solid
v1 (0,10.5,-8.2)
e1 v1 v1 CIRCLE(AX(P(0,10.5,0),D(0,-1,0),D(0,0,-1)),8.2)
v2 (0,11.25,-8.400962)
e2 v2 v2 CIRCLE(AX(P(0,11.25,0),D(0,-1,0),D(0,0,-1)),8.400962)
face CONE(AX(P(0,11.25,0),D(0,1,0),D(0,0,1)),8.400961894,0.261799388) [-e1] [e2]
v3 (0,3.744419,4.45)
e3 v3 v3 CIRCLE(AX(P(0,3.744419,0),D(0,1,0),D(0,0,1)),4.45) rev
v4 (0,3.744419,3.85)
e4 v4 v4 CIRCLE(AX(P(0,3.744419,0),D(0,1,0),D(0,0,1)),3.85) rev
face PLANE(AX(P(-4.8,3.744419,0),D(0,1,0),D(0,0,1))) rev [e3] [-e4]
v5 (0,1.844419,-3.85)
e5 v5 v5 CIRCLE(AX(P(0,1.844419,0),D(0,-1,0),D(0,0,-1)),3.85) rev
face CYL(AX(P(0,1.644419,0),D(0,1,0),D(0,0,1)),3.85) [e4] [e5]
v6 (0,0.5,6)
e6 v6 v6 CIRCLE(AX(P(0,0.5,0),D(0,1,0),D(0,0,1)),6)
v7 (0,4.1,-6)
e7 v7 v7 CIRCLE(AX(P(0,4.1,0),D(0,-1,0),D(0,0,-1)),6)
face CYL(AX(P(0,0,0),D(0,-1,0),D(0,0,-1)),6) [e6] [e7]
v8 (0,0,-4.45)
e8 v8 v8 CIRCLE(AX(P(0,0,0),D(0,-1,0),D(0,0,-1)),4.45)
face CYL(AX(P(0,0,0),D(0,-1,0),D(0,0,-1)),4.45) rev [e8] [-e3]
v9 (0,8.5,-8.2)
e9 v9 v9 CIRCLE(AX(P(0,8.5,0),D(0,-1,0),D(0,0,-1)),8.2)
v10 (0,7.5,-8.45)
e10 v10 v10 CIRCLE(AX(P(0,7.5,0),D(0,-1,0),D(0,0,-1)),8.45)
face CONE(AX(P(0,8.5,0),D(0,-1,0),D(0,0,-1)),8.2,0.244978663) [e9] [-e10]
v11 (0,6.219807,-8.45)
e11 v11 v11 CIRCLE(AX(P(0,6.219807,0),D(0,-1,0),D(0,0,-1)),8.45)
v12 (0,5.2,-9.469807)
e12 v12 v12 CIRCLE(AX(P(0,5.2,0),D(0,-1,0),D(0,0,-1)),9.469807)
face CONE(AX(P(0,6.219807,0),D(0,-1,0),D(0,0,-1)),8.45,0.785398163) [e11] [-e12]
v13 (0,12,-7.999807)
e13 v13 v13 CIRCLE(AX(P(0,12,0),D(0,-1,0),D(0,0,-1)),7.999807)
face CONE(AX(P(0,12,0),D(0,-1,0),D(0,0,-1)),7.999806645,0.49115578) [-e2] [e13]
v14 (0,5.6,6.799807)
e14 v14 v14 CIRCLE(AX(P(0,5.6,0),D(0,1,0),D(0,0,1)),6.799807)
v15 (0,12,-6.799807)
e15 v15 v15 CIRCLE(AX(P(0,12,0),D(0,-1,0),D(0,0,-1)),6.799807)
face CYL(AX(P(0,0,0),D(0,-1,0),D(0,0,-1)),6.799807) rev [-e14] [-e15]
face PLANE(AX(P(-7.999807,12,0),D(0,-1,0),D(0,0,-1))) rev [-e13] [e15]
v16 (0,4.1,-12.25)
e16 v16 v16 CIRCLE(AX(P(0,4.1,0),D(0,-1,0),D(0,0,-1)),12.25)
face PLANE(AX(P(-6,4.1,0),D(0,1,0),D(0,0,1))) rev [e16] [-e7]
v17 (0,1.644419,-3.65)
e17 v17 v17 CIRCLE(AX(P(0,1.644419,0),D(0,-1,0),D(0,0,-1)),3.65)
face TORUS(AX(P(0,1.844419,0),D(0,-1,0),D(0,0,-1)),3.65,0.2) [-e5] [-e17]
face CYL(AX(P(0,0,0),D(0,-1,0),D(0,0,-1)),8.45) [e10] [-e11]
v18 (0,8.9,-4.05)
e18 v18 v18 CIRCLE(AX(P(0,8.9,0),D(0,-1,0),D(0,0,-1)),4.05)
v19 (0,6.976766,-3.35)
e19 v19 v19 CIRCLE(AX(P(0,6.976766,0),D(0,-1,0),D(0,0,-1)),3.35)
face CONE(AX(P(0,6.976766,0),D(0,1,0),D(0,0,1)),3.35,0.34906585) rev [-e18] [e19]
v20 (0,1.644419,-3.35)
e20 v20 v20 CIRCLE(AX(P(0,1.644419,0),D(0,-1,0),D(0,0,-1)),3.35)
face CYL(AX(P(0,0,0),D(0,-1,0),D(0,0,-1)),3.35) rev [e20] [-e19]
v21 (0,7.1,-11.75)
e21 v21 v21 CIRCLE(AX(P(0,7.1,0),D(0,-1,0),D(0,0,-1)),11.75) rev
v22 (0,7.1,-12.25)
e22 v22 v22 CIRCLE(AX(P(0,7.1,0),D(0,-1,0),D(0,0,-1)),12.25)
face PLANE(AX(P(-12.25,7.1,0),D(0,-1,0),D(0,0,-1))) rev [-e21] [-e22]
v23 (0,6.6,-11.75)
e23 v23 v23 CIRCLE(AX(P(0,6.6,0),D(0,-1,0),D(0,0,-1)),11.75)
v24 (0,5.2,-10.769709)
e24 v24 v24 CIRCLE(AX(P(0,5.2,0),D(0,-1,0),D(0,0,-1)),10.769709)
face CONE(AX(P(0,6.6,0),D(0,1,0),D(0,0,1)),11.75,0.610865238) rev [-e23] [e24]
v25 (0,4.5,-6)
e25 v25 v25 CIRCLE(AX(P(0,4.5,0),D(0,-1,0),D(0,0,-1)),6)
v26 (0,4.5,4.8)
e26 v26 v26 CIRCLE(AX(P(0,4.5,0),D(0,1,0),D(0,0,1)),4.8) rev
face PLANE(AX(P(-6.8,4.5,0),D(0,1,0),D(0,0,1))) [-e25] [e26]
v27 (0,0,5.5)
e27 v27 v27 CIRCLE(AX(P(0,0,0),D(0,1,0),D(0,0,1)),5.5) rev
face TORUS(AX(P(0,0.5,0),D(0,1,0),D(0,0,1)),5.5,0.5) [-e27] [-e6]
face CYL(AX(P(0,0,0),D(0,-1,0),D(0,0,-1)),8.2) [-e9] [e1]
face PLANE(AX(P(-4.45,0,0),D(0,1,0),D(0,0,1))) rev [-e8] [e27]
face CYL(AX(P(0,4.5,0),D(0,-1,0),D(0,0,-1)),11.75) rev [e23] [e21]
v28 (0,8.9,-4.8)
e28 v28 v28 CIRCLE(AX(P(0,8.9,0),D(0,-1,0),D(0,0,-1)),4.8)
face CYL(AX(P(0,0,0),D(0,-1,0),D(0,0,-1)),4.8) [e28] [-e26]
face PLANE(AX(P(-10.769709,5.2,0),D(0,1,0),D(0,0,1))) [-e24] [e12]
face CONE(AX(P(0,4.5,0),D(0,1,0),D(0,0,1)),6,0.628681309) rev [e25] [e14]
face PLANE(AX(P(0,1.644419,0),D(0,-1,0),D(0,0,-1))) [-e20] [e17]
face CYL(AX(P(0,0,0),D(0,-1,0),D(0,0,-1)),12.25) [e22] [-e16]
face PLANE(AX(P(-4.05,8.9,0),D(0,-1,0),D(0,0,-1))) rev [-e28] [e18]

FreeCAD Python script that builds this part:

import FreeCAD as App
import Part
import Sketcher
Q = App.Units.Quantity


def edges_at(feature, points):
    """Names of the edges that pass closest to the given points."""
    edges = feature.Shape.Edges
    near = lambda p: min(range(len(edges)), key=lambda i: edges[i].distToShape(Part.Vertex(*p))[0])
    return sorted({f"Edge{near(p) + 1}" for p in points})

doc = App.newDocument("Part")
body = doc.addObject("PartDesign::Body", "Body")

# Sketch on XY plane
sketch1 = body.newObject("Sketcher::SketchObject", "Sketch")
sketch1.AttachmentSupport = (doc.getObject("XY_Plane"), [""])
sketch1.MapMode = "FlatFace"
sketch1.addGeometry([
    Part.LineSegment(App.Vector(-4.5, 7.1, 0), App.Vector(-12.2, 7.1, 0)),  # 0
    Part.LineSegment(App.Vector(-12.2, 7.1, 0), App.Vector(-12.2, 4.1, 0)),  # 1
    Part.LineSegment(App.Vector(-12.2, 4.1, 0), App.Vector(-6, 4.1, 0)),  # 2
    Part.LineSegment(App.Vector(-6, 4.1, 0), App.Vector(-6, 0, 0)),  # 3
    Part.LineSegment(App.Vector(-6, 0, 0), App.Vector(-4.5, 0, 0)),  # 4
    Part.LineSegment(App.Vector(-4.5, 0, 0), App.Vector(-4.5, 7.1, 0)),  # 5
], False)
sketch1.addConstraint([
    Sketcher.Constraint("Coincident", 0, 2, 1, 1),
    Sketcher.Constraint("Coincident", 1, 2, 2, 1),
    Sketcher.Constraint("Coincident", 2, 2, 3, 1),
    Sketcher.Constraint("Coincident", 3, 2, 4, 1),
    Sketcher.Constraint("Coincident", 4, 2, 5, 1),
    Sketcher.Constraint("Coincident", 5, 2, 0, 1),
    Sketcher.Constraint("Horizontal", 0),
    Sketcher.Constraint("Vertical", 1),
    Sketcher.Constraint("Horizontal", 2),
    Sketcher.Constraint("Vertical", 3),
    Sketcher.Constraint("Horizontal", 4),
    Sketcher.Constraint("Vertical", 5),
    Sketcher.Constraint("PointOnObject", 3, 2, -1),
    Sketcher.Constraint("DistanceY", 1, 2, 1, 1, 3.0),
    Sketcher.Constraint("DistanceX", 0, 2, 0, 1, 7.8),
    Sketcher.Constraint("DistanceY", 3, 2, 3, 1, 4.1),
    Sketcher.Constraint("DistanceX", 2, 2, -1, 1, 6.0),
    Sketcher.Constraint("DistanceX", 2, 1, 2, 2, 6.25),
])
revolution = body.newObject("PartDesign::Revolution", "Revolution")
revolution.Profile = sketch1
revolution.ReferenceAxis = (sketch1, ["V_Axis"])
revolution.Angle = 360

# Sketch on XY plane
sketch2 = body.newObject("Sketcher::SketchObject", "Sketch001")
sketch2.AttachmentSupport = (doc.getObject("XY_Plane"), [""])
sketch2.MapMode = "FlatFace"
sketch2.addGeometry([
    Part.LineSegment(App.Vector(-11.8, 6.6, 0), App.Vector(-10.8, 5.2, 0)),  # 0
    Part.LineSegment(App.Vector(-10.8, 5.2, 0), App.Vector(-6.8, 5.2, 0)),  # 1
    Part.LineSegment(App.Vector(-6.8, 5.2, 0), App.Vector(-6.8, 4.5, 0)),  # 2
    Part.LineSegment(App.Vector(-6.8, 4.5, 0), App.Vector(0, 4.5, 0)),  # 3
    Part.LineSegment(App.Vector(0, 4.5, 0), App.Vector(0, 9.9, 0)),  # 4
    Part.LineSegment(App.Vector(0, 9.9, 0), App.Vector(-11.8, 9.9, 0)),  # 5
    Part.LineSegment(App.Vector(-11.8, 9.9, 0), App.Vector(-11.8, 6.6, 0)),  # 6
], False)
sketch2.addConstraint([
    Sketcher.Constraint("Coincident", 0, 2, 1, 1),
    Sketcher.Constraint("Coincident", 1, 2, 2, 1),
    Sketcher.Constraint("Coincident", 2, 2, 3, 1),
    Sketcher.Constraint("Coincident", 3, 2, 4, 1),
    Sketcher.Constraint("Coincident", 4, 2, 5, 1),
    Sketcher.Constraint("Coincident", 5, 2, 6, 1),
    Sketcher.Constraint("Coincident", 6, 2, 0, 1),
    Sketcher.Constraint("Horizontal", 1),
    Sketcher.Constraint("Vertical", 2),
    Sketcher.Constraint("Horizontal", 3),
    Sketcher.Constraint("Vertical", 4),
    Sketcher.Constraint("Horizontal", 5),
    Sketcher.Constraint("Vertical", 6),
    Sketcher.Constraint("PointOnObject", 3, 2, -2),
    Sketcher.Constraint("Angle", 0, Q("-55 deg")),
    Sketcher.Constraint("DistanceX", 3, 1, 3, 2, 6.8),
    Sketcher.Constraint("DistanceY", 2, 2, 2, 1, 0.7),
    Sketcher.Constraint("DistanceX", 5, 2, 5, 1, 11.75),
    Sketcher.Constraint("DistanceY", -1, 1, 0, 2, 5.2),
    Sketcher.Constraint("DistanceY", -1, 1, 6, 2, 6.6),
    Sketcher.Constraint("DistanceY", 4, 1, 4, 2, 5.350026),
])
groove = body.newObject("PartDesign::Groove", "Groove")
groove.Profile = sketch2
groove.ReferenceAxis = (sketch2, ["V_Axis"])
groove.Angle = 360

# Sketch on XY plane
sketch3 = body.newObject("Sketcher::SketchObject", "Sketch002")
sketch3.AttachmentSupport = (doc.getObject("XY_Plane"), [""])
sketch3.MapMode = "FlatFace"
sketch3.addGeometry([
    Part.LineSegment(App.Vector(-4.8, 8.9, 0), App.Vector(-4.8, 3.7, 0)),  # 0
    Part.LineSegment(App.Vector(-4.8, 3.7, 0), App.Vector(-3.4, 3.7, 0)),  # 1
    Part.LineSegment(App.Vector(-3.4, 3.7, 0), App.Vector(-3.4, 7, 0)),  # 2
    Part.LineSegment(App.Vector(-3.4, 7, 0), App.Vector(-4, 8.9, 0)),  # 3
    Part.LineSegment(App.Vector(-4, 8.9, 0), App.Vector(-4.8, 8.9, 0)),  # 4
], False)
sketch3.addConstraint([
    Sketcher.Constraint("Coincident", 0, 2, 1, 1),
    Sketcher.Constraint("Coincident", 1, 2, 2, 1),
    Sketcher.Constraint("Coincident", 2, 2, 3, 1),
    Sketcher.Constraint("Coincident", 3, 2, 4, 1),
    Sketcher.Constraint("Coincident", 4, 2, 0, 1),
    Sketcher.Constraint("Vertical", 0),
    Sketcher.Constraint("Horizontal", 1),
    Sketcher.Constraint("Vertical", 2),
    Sketcher.Constraint("Horizontal", 4),
    Sketcher.Constraint("Angle", 3, Q("110 deg")),
    Sketcher.Constraint("DistanceX", 1, 1, 1, 2, 1.45),
    Sketcher.Constraint("DistanceX", 4, 2, 4, 1, 0.75),
    Sketcher.Constraint("DistanceX", 0, 2, -1, 1, 4.8),
    Sketcher.Constraint("DistanceY", -1, 1, 3, 2, 8.9),
    Sketcher.Constraint("DistanceY", 0, 2, 0, 1, 5.155581),
])
revolution2 = body.newObject("PartDesign::Revolution", "Revolution001")
revolution2.Profile = sketch3
revolution2.ReferenceAxis = (sketch3, ["V_Axis"])
revolution2.Angle = 360

# Sketch on XZ plane
sketch4 = body.newObject("Sketcher::SketchObject", "Sketch003")
sketch4.AttachmentSupport = (doc.getObject("XZ_Plane"), [""])
sketch4.MapMode = "FlatFace"
sketch4.AttachmentOffset = App.Placement(App.Vector(0, 0, -3.744419), App.Rotation())
sketch4.addGeometry([
    Part.Circle(App.Vector(0, 0, 0), App.Vector(0, 0, 1), 3.9),
    Part.Circle(App.Vector(0, 0, 0), App.Vector(0, 0, 1), 3.4),
], False)
sketch4.addConstraint([
    Sketcher.Constraint("Coincident", 0, 3, -1, 1),
    Sketcher.Constraint("Coincident", 1, 3, -1, 1),
    Sketcher.Constraint("Diameter", 0, 7.7),
    Sketcher.Constraint("Diameter", 1, 6.7),
])
pad1 = body.newObject("PartDesign::Pad", "Pad")
pad1.Profile = sketch4
pad1.Length = 2.1

# Sketch on XY plane
sketch5 = body.newObject("Sketcher::SketchObject", "Sketch004")
sketch5.AttachmentSupport = (doc.getObject("XY_Plane"), [""])
sketch5.MapMode = "FlatFace"
sketch5.addGeometry([
    Part.LineSegment(App.Vector(-6.8, 5.2, 0), App.Vector(-6.8, 12, 0)),  # 0
    Part.LineSegment(App.Vector(-6.8, 12, 0), App.Vector(-8, 12, 0)),  # 1
    Part.LineSegment(App.Vector(-8, 12, 0), App.Vector(-8.4, 11.2, 0)),  # 2
    Part.LineSegment(App.Vector(-8.4, 11.2, 0), App.Vector(-8.2, 10.5, 0)),  # 3
    Part.LineSegment(App.Vector(-8.2, 10.5, 0), App.Vector(-8.2, 8.5, 0)),  # 4
    Part.LineSegment(App.Vector(-8.2, 8.5, 0), App.Vector(-8.4, 7.5, 0)),  # 5
    Part.LineSegment(App.Vector(-8.4, 7.5, 0), App.Vector(-8.4, 6.2, 0)),  # 6
    Part.LineSegment(App.Vector(-8.4, 6.2, 0), App.Vector(-9.5, 5.2, 0)),  # 7
    Part.LineSegment(App.Vector(-9.5, 5.2, 0), App.Vector(-6.8, 5.2, 0)),  # 8
], False)
sketch5.addConstraint([
    Sketcher.Constraint("Coincident", 0, 2, 1, 1),
    Sketcher.Constraint("Coincident", 1, 2, 2, 1),
    Sketcher.Constraint("Coincident", 2, 2, 3, 1),
    Sketcher.Constraint("Coincident", 3, 2, 4, 1),
    Sketcher.Constraint("Coincident", 4, 2, 5, 1),
    Sketcher.Constraint("Coincident", 5, 2, 6, 1),
    Sketcher.Constraint("Coincident", 6, 2, 7, 1),
    Sketcher.Constraint("Coincident", 7, 2, 8, 1),
    Sketcher.Constraint("Coincident", 8, 2, 0, 1),
    Sketcher.Constraint("Vertical", 0),
    Sketcher.Constraint("Horizontal", 1),
    Sketcher.Constraint("Vertical", 4),
    Sketcher.Constraint("Vertical", 6),
    Sketcher.Constraint("Horizontal", 8),
    Sketcher.Constraint("DistanceY", 4, 2, 4, 1, 2.0),
    Sketcher.Constraint("Angle", 3, Q("-75 deg")),
    Sketcher.Constraint("Angle", 7, Q("-135 deg")),
    Sketcher.Constraint("DistanceX", 1, 2, 1, 1, 1.2),
    Sketcher.Constraint("DistanceY", 0, 1, 0, 2, 6.8),
    Sketcher.Constraint("DistanceY", -1, 1, 0, 2, 12.0),
    Sketcher.Constraint("DistanceY", 5, 2, 4, 2, 1.0),
    Sketcher.Constraint("DistanceX", 8, 1, 8, 2, 2.67),
    Sketcher.Constraint("DistanceX", 3, 2, -1, 1, 8.2),
    Sketcher.Constraint("DistanceY", -1, 1, 3, 2, 10.5),
    Sketcher.Constraint("DistanceY", -1, 1, 2, 2, 11.25),
    Sketcher.Constraint("DistanceX", 5, 2, -1, 1, 8.45),
    Sketcher.Constraint("DistanceY", 6, 2, 6, 1, 1.280193),
])
revolution3 = body.newObject("PartDesign::Revolution", "Revolution002")
revolution3.Profile = sketch5
revolution3.ReferenceAxis = (sketch5, ["V_Axis"])
revolution3.Angle = 360

# Sketch on XY plane
sketch6 = body.newObject("Sketcher::SketchObject", "Sketch005")
sketch6.AttachmentSupport = (doc.getObject("XY_Plane"), [""])
sketch6.MapMode = "FlatFace"
sketch6.addGeometry([
    Part.LineSegment(App.Vector(-6, 4.5, 0), App.Vector(-6.8, 5.6, 0)),  # 0
    Part.LineSegment(App.Vector(-6.8, 5.6, 0), App.Vector(-7.14, 5.6, 0)),  # 1
    Part.LineSegment(App.Vector(-7.14, 5.6, 0), App.Vector(-7.14, 4.31, 0)),  # 2
    Part.LineSegment(App.Vector(-7.14, 4.31, 0), App.Vector(-6, 4.31, 0)),  # 3
    Part.LineSegment(App.Vector(-6, 4.31, 0), App.Vector(-6, 4.5, 0)),  # 4
], False)
sketch6.addConstraint([
    Sketcher.Constraint("Coincident", 0, 2, 1, 1),
    Sketcher.Constraint("Coincident", 1, 2, 2, 1),
    Sketcher.Constraint("Coincident", 2, 2, 3, 1),
    Sketcher.Constraint("Coincident", 3, 2, 4, 1),
    Sketcher.Constraint("Coincident", 4, 2, 0, 1),
    Sketcher.Constraint("Horizontal", 1),
    Sketcher.Constraint("Vertical", 2),
    Sketcher.Constraint("Horizontal", 3),
    Sketcher.Constraint("Vertical", 4),
    Sketcher.Constraint("DistanceX", 3, 2, -1, 1, 6.0),
    Sketcher.Constraint("DistanceY", -1, 1, 0, 2, 5.6),
    Sketcher.Constraint("DistanceY", -1, 1, 4, 2, 4.5),
    Sketcher.Constraint("DistanceX", 3, 1, 3, 2, 1.139779),
    Sketcher.Constraint("DistanceY", 2, 2, 2, 1, 1.29111),
    Sketcher.Constraint("DistanceX", 1, 2, 1, 1, 0.339972),
])
revolution4 = body.newObject("PartDesign::Revolution", "Revolution003")
revolution4.Profile = sketch6
revolution4.ReferenceAxis = (sketch6, ["V_Axis"])
revolution4.Angle = 360
doc.recompute()

fillet = body.newObject("PartDesign::Fillet", "Fillet")
fillet.Base = (revolution4, edges_at(revolution4, [(0, 0, 6)]))
fillet.Radius = 0.5
doc.recompute()

fillet2 = body.newObject("PartDesign::Fillet", "Fillet001")
fillet2.Base = (fillet, edges_at(fillet, [(0, 1.644, -3.85)]))
fillet2.Radius = 0.2

doc.recompute()
